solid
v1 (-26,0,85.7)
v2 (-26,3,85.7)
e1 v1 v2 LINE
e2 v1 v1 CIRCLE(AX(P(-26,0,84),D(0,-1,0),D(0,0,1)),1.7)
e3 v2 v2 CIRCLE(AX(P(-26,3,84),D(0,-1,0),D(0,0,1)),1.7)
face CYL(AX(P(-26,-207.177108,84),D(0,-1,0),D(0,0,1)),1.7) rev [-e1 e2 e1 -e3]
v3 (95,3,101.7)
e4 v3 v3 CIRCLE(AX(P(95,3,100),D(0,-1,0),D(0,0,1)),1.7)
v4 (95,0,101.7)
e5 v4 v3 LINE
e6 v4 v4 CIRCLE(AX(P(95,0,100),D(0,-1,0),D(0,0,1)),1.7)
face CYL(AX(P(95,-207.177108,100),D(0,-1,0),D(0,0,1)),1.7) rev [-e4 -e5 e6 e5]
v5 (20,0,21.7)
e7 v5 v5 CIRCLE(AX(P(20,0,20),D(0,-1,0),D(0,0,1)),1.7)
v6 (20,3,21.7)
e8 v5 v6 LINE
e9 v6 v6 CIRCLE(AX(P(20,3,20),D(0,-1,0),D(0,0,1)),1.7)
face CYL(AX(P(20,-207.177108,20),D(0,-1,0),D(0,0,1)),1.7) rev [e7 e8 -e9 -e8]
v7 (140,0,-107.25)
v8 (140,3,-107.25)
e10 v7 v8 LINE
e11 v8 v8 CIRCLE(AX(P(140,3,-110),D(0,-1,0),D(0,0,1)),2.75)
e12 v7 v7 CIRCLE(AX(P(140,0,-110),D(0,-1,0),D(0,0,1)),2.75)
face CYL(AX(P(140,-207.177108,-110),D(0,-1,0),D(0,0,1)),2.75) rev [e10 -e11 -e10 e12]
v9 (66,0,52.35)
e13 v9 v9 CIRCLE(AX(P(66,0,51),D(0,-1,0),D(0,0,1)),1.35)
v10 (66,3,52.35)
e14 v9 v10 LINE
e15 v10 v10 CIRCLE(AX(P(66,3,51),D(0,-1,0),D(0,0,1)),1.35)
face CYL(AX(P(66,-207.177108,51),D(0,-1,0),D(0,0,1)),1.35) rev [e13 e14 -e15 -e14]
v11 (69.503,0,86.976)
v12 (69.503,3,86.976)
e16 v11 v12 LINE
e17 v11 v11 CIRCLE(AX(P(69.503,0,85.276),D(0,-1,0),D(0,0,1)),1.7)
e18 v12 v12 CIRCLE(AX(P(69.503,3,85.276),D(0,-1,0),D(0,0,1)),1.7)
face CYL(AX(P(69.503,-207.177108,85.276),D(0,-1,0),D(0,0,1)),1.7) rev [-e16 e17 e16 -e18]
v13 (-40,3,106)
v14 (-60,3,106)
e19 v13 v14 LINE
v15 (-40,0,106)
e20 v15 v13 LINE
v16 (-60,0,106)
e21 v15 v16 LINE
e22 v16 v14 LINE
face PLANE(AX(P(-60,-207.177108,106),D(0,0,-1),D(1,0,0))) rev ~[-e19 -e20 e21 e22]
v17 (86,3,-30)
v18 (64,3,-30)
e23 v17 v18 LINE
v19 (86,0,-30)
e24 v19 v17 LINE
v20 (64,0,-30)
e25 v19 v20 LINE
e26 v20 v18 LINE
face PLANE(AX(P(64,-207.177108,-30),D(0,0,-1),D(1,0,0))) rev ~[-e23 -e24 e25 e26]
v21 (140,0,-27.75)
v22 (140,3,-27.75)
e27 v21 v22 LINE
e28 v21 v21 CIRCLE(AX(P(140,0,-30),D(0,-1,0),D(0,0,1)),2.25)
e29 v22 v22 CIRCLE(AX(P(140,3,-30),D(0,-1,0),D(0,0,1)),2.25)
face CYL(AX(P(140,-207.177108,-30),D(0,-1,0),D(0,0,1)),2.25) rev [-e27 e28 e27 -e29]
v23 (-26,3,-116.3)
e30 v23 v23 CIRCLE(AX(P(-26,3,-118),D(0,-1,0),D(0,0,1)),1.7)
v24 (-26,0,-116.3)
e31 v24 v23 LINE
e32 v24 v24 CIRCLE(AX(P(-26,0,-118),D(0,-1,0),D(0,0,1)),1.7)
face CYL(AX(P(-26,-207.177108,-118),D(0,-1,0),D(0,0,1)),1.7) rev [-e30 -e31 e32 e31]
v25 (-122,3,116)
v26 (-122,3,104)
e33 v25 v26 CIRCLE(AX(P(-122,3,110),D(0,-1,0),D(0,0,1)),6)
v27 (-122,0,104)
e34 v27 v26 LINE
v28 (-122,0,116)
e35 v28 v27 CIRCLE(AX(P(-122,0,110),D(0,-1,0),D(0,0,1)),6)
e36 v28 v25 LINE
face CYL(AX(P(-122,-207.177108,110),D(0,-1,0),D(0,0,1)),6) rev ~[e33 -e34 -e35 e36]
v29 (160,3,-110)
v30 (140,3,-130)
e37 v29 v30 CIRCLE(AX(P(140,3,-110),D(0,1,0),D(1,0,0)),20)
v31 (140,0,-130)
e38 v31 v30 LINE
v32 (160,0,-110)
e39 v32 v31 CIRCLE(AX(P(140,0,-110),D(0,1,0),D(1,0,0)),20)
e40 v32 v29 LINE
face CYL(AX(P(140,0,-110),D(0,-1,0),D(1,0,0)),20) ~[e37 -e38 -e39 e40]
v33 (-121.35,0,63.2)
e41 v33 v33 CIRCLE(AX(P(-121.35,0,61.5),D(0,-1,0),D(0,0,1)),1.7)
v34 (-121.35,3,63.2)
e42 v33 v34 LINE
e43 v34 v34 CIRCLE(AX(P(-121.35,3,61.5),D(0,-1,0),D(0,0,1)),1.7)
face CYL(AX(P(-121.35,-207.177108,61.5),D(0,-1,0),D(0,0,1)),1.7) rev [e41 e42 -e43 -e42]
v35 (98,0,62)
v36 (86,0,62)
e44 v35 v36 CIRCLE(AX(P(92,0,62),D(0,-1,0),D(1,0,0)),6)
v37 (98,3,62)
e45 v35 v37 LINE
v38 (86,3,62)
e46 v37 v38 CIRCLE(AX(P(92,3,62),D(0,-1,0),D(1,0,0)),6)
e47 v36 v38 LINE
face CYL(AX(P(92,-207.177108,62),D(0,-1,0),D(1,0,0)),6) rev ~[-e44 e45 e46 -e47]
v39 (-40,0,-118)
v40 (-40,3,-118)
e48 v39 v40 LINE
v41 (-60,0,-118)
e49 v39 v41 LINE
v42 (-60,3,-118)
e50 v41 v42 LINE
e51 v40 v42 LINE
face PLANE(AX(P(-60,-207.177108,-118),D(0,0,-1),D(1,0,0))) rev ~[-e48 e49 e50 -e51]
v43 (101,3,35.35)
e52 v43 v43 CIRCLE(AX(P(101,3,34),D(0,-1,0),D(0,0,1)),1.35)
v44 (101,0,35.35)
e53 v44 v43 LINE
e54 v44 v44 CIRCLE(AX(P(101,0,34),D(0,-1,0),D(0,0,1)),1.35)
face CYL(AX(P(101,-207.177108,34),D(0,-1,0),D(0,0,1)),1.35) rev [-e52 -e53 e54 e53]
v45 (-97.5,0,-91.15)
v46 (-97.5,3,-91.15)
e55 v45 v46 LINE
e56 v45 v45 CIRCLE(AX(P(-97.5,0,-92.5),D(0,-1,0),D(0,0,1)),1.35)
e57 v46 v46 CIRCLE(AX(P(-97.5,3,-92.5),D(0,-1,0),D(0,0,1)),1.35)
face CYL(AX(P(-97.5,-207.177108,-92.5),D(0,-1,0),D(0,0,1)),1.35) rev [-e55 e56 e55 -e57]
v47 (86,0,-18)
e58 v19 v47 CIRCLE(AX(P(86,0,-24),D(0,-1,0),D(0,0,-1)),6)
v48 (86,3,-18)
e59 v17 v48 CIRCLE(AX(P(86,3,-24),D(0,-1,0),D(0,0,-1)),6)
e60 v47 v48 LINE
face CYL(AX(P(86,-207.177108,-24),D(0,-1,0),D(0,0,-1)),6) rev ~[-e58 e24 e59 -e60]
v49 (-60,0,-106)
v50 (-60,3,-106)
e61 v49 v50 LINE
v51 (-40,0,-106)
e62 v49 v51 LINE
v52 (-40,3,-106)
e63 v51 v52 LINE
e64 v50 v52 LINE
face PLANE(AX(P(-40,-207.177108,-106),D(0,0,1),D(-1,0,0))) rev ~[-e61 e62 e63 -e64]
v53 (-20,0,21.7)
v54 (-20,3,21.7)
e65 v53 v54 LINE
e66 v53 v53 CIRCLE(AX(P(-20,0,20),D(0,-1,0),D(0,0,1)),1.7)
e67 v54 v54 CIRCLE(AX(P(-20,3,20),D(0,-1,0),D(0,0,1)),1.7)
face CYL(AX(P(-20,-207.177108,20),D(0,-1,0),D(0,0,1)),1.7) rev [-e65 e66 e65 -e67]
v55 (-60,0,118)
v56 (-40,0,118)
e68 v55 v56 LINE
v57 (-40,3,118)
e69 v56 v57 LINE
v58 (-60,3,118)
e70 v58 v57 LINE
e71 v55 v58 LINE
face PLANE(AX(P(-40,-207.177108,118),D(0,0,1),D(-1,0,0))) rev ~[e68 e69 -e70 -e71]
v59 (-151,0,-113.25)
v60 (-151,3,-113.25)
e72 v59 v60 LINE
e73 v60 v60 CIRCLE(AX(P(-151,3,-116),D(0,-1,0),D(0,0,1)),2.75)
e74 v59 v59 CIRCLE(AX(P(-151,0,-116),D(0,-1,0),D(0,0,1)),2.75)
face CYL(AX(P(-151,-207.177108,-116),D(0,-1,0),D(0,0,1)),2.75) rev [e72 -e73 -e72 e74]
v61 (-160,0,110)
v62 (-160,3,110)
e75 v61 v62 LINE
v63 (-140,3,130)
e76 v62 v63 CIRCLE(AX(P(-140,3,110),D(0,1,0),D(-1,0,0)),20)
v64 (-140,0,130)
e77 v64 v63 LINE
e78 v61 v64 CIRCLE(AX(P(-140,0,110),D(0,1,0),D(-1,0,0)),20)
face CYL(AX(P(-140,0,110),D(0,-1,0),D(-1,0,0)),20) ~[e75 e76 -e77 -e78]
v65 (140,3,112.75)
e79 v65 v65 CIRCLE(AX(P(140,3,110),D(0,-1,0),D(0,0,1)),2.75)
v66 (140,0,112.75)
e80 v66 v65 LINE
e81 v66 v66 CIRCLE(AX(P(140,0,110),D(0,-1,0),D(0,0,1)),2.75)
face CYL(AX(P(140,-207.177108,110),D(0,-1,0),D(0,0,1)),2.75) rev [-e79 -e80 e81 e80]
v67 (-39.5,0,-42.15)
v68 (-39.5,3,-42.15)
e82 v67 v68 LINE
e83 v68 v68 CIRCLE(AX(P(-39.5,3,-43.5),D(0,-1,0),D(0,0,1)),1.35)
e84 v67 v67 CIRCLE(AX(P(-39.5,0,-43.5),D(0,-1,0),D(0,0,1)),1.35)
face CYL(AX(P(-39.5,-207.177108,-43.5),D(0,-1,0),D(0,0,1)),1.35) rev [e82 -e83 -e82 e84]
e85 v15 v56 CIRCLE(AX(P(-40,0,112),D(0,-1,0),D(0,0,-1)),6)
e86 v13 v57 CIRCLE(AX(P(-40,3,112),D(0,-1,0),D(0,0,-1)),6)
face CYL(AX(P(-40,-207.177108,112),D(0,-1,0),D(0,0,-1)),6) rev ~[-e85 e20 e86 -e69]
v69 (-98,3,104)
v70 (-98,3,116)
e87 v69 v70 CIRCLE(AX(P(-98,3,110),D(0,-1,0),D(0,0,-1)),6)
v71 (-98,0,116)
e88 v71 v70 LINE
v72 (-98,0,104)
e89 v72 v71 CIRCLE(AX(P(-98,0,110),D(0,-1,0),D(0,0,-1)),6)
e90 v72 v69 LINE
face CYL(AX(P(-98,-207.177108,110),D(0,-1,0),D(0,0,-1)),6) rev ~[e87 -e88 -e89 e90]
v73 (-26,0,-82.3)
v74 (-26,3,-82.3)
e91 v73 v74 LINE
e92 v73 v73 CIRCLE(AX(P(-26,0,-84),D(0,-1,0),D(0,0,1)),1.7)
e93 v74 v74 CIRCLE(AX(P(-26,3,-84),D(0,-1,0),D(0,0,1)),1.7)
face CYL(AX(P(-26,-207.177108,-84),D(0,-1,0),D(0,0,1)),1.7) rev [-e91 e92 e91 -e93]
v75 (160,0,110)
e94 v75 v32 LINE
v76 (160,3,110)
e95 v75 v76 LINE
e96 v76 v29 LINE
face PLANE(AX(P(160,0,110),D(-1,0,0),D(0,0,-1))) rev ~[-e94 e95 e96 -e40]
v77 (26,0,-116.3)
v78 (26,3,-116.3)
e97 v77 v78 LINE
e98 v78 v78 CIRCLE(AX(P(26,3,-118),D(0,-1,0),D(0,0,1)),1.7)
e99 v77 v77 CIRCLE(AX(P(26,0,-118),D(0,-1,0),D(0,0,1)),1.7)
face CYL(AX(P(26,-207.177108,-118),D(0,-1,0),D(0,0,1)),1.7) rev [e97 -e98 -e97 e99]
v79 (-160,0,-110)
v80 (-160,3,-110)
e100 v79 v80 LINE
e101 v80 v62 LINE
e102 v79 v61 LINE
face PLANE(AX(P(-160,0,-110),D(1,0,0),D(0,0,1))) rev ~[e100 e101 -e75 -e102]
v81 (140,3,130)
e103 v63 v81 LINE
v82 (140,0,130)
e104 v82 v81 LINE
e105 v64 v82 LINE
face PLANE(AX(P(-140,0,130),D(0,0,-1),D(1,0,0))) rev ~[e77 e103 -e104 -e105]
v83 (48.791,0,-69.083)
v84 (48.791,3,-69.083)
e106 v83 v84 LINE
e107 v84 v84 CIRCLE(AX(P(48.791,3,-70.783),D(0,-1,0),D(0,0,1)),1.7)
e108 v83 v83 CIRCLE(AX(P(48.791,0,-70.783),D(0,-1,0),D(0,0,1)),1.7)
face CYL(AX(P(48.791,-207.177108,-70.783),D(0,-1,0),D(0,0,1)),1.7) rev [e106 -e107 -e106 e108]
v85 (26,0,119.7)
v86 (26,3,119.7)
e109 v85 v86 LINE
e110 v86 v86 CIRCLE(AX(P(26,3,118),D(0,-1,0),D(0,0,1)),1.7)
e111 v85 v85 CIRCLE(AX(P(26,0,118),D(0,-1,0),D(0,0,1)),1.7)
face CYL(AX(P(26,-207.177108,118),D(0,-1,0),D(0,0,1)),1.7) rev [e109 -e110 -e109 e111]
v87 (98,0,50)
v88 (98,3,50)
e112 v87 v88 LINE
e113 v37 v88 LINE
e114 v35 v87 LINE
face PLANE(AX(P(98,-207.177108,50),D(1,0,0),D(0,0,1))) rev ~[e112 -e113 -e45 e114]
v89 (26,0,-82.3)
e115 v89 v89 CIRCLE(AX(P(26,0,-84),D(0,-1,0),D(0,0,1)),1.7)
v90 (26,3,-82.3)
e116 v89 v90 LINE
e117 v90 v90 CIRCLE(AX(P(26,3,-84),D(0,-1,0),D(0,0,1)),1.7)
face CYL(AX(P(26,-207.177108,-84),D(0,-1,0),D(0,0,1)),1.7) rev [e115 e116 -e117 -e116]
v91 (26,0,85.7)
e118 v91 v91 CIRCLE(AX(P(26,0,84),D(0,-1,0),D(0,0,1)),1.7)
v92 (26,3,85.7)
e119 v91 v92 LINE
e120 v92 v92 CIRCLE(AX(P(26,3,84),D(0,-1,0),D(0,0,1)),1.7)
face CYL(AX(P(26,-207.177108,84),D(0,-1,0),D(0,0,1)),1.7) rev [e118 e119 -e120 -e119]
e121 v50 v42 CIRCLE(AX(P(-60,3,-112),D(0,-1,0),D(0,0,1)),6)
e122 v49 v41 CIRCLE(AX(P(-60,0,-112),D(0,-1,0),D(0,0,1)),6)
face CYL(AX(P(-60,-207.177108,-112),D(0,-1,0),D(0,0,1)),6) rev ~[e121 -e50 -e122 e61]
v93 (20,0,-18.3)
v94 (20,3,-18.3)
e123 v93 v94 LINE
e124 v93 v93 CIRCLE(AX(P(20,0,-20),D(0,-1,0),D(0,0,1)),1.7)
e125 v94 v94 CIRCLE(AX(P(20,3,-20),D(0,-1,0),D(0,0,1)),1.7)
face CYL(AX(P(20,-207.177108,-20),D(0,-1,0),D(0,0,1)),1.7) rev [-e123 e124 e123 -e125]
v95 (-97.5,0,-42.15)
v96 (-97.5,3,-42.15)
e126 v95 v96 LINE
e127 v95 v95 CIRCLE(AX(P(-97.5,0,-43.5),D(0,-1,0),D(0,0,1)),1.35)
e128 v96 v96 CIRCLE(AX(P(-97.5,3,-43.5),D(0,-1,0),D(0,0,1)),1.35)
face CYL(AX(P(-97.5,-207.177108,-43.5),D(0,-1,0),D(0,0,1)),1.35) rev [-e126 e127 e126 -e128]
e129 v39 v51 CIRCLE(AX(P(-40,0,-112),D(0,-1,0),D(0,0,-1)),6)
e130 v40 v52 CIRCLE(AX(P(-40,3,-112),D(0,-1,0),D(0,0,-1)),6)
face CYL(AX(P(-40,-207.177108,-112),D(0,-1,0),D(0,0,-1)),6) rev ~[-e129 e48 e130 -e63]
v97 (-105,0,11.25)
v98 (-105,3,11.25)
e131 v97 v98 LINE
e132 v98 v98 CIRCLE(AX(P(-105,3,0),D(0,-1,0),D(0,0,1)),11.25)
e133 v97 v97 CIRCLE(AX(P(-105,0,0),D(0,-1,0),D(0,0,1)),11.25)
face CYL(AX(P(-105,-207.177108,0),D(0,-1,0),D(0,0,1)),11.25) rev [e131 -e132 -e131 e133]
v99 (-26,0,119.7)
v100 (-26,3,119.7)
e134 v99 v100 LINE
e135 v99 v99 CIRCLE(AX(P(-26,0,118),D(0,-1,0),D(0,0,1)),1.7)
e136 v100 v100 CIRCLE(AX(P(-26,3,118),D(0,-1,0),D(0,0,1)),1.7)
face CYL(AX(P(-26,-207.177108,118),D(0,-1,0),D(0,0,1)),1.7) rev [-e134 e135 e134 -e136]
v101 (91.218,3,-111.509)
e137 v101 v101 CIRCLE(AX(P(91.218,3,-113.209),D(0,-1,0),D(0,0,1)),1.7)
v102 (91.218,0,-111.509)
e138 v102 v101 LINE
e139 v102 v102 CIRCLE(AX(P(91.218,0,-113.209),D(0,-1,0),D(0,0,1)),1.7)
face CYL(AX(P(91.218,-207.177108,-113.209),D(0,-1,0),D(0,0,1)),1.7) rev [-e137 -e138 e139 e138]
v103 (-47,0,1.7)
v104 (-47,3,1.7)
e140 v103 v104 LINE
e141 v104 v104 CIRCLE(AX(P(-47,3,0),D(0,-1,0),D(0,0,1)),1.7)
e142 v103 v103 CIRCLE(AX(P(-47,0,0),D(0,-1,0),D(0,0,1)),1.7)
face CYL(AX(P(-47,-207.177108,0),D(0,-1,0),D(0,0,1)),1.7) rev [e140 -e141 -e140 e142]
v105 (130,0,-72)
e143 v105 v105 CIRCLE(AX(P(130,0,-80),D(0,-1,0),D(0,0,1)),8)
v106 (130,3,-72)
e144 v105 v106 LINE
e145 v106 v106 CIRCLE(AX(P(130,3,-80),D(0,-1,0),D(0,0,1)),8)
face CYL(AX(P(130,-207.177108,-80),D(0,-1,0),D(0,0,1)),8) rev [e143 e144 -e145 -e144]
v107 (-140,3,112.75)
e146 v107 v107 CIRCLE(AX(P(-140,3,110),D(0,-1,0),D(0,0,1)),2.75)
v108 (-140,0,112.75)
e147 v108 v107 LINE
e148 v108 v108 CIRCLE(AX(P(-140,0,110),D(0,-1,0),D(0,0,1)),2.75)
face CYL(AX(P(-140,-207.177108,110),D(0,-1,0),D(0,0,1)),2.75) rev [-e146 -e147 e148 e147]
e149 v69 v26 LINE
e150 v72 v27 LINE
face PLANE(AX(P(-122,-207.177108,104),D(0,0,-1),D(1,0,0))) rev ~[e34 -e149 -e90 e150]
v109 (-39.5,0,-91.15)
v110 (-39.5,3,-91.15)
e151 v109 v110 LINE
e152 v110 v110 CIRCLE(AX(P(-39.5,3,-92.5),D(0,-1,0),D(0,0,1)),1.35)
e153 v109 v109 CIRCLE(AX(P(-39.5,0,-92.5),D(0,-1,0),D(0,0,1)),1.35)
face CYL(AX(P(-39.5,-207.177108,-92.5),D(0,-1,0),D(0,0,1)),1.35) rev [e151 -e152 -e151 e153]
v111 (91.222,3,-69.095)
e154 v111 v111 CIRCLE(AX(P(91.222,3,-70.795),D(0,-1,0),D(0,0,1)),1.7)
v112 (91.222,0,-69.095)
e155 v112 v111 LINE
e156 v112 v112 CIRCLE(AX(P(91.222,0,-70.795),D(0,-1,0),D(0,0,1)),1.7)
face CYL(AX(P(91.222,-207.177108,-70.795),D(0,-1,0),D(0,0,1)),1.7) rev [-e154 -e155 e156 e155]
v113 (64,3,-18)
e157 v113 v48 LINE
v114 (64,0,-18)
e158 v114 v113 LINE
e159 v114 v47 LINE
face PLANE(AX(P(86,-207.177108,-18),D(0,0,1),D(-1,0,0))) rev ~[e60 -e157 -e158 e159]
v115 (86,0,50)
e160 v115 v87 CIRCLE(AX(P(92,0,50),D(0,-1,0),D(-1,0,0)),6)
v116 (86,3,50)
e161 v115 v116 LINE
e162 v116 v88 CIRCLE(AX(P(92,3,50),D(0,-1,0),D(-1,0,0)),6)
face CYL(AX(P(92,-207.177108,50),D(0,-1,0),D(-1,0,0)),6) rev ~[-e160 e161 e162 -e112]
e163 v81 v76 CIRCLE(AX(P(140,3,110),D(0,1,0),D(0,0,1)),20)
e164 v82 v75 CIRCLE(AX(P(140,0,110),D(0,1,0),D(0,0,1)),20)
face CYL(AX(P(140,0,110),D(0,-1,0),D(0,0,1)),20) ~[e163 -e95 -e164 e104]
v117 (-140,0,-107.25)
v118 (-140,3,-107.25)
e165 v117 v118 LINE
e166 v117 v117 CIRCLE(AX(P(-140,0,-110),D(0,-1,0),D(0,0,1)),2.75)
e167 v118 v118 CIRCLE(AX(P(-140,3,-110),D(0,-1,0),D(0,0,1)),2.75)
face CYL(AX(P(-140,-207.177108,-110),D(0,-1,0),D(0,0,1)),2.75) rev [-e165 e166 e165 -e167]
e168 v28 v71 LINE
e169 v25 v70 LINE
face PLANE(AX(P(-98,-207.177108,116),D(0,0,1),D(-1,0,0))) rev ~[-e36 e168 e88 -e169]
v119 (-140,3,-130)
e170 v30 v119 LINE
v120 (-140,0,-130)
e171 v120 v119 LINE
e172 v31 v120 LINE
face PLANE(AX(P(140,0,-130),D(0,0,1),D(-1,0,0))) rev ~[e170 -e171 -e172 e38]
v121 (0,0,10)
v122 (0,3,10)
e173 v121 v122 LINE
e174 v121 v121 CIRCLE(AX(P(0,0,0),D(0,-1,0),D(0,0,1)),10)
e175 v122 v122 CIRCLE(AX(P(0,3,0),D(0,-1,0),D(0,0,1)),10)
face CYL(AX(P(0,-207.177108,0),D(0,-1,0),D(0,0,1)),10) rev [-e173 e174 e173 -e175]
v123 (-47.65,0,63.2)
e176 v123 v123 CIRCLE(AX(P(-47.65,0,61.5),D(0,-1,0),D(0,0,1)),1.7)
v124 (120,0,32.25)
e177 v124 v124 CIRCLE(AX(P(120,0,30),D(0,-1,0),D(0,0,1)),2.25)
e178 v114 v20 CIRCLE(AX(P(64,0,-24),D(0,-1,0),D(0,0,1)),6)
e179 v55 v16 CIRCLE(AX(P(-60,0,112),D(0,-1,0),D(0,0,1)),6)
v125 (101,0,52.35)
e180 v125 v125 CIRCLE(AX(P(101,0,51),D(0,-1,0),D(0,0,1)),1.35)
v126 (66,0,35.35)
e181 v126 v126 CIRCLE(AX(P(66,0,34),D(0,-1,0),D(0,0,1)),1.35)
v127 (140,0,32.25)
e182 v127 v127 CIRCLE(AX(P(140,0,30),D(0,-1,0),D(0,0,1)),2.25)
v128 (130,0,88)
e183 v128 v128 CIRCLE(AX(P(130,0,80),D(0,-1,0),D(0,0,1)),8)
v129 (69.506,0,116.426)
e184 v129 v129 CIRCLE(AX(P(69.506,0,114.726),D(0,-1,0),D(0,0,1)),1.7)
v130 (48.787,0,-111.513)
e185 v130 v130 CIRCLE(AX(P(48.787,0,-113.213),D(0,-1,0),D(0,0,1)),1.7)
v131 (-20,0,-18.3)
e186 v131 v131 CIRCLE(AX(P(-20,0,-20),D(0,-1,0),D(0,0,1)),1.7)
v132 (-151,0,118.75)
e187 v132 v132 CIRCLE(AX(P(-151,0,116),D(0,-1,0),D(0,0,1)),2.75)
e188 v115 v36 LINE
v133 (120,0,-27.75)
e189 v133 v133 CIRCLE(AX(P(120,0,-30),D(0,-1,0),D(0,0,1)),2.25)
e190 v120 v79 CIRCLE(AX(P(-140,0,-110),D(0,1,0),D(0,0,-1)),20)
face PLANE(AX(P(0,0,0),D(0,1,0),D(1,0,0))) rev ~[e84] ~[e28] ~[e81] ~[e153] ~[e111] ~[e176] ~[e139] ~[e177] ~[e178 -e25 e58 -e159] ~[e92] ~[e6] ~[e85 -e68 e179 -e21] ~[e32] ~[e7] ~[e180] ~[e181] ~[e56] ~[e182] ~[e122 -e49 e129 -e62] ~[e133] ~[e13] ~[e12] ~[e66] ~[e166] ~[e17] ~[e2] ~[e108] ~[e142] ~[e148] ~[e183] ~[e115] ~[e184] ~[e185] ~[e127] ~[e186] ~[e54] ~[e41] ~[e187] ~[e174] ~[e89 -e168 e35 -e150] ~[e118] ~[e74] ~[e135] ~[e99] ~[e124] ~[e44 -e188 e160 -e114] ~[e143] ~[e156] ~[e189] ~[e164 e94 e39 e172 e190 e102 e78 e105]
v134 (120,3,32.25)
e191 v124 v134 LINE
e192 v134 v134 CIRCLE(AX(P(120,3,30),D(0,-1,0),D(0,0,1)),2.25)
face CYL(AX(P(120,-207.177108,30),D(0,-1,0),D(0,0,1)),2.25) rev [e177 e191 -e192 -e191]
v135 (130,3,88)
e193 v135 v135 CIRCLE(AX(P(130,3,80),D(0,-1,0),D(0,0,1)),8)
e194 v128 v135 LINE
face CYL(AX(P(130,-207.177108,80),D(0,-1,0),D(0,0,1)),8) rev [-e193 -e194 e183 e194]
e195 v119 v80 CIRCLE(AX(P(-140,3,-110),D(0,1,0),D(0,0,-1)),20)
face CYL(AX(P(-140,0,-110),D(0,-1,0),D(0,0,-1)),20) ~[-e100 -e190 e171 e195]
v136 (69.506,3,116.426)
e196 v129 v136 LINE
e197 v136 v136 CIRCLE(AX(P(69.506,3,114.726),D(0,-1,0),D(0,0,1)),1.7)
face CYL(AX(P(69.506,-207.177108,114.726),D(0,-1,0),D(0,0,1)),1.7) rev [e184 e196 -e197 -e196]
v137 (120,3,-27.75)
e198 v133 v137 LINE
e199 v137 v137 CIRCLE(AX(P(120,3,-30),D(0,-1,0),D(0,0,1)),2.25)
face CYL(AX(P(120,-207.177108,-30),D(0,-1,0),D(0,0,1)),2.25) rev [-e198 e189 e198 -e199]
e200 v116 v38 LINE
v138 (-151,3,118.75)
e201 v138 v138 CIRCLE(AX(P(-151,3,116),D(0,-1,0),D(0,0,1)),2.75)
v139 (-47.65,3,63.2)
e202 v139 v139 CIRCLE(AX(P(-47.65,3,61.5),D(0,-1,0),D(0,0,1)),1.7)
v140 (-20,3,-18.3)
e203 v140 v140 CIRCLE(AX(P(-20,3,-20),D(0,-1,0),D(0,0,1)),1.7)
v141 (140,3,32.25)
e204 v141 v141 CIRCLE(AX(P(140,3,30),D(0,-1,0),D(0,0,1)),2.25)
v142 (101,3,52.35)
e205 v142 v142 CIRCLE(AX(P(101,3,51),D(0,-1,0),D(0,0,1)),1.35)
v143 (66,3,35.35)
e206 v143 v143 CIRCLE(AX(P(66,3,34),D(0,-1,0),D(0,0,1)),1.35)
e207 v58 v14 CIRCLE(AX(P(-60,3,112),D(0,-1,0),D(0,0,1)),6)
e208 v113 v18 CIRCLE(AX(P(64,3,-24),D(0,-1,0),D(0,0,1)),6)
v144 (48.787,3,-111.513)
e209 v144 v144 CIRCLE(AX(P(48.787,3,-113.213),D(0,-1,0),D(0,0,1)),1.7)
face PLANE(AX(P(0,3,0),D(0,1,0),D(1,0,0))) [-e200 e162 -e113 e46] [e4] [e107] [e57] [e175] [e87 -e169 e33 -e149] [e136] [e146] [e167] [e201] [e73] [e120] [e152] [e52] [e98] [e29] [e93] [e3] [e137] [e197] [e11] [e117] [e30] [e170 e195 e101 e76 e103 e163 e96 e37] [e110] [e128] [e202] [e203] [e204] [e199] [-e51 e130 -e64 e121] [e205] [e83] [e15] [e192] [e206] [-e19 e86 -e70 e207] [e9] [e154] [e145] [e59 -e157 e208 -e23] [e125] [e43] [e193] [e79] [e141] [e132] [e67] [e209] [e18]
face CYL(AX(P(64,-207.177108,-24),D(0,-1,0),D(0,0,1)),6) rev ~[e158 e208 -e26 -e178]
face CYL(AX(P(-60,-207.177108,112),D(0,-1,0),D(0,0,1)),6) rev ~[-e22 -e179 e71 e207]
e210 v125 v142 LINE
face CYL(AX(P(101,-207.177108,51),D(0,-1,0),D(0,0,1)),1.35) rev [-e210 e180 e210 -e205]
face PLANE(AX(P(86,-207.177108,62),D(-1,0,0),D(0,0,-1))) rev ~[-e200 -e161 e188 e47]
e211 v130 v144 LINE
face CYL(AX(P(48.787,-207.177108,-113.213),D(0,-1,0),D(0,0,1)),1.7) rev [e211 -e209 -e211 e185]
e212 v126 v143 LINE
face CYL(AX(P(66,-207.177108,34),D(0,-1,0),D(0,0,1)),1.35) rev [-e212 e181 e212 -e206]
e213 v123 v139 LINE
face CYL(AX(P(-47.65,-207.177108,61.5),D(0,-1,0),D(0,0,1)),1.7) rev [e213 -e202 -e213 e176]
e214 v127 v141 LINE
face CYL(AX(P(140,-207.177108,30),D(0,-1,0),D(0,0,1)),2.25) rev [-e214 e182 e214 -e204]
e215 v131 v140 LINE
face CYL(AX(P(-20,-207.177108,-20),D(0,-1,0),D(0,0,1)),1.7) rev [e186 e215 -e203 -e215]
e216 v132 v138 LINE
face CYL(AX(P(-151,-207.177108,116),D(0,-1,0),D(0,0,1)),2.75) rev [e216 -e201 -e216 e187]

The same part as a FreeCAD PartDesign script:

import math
import FreeCAD as App
import Part
import Sketcher
Q = App.Units.Quantity

doc = App.newDocument("Part")
body = doc.addObject("PartDesign::Body", "Body")

sketch1 = doc.addObject("Sketcher::SketchObject", "Sketch")
body.addObject(sketch1)
sketch1.AttachmentSupport = (doc.XZ_Plane, [""])
sketch1.MapMode = "FlatFace"
sketch1.addGeometry([
    Part.LineSegment(App.Vector(160, 110, 0), App.Vector(160, -110, 0)),
    Part.ArcOfCircle(Part.Circle(App.Vector(140, -110, 0), App.Vector(0, 0, 1), 20), math.radians(-90), math.radians(0)),
    Part.LineSegment(App.Vector(140, -130, 0), App.Vector(-140, -130, 0)),
    Part.ArcOfCircle(Part.Circle(App.Vector(-140, -110, 0), App.Vector(0, 0, 1), 20), math.radians(180), math.radians(270)),
    Part.LineSegment(App.Vector(-160, -110, 0), App.Vector(-160, 110, 0)),
    Part.ArcOfCircle(Part.Circle(App.Vector(-140, 110, 0), App.Vector(0, 0, 1), 20), math.radians(90), math.radians(180)),
    Part.LineSegment(App.Vector(-140, 130, 0), App.Vector(140, 130, 0)),
    Part.ArcOfCircle(Part.Circle(App.Vector(140, 110, 0), App.Vector(0, 0, 1), 20), math.radians(0), math.radians(90)),
], False)
sketch1.addConstraint([
    Sketcher.Constraint("Tangent", 0, 2, 1, 2),
    Sketcher.Constraint("Tangent", 1, 1, 2, 1),
    Sketcher.Constraint("Tangent", 2, 2, 3, 2),
    Sketcher.Constraint("Tangent", 3, 1, 4, 1),
    Sketcher.Constraint("Tangent", 4, 2, 5, 2),
    Sketcher.Constraint("Tangent", 5, 1, 6, 1),
    Sketcher.Constraint("Tangent", 6, 2, 7, 2),
    Sketcher.Constraint("Tangent", 7, 1, 0, 1),
    Sketcher.Constraint("Vertical", 0),
    Sketcher.Constraint("Horizontal", 2),
    Sketcher.Constraint("Vertical", 4),
    Sketcher.Constraint("Horizontal", 6),
    Sketcher.Constraint("Equal", 1, 3),
    Sketcher.Constraint("Equal", 3, 5),
    Sketcher.Constraint("Equal", 5, 7),
    Sketcher.Constraint("Symmetric", 1, 3, 5, 3, -1, 1),
    Sketcher.Constraint("Radius", 1, Q("20 mm")),
    Sketcher.Constraint("DistanceX", 2, 2, 2, 1, Q("280 mm")),
    Sketcher.Constraint("DistanceY", 0, 2, 0, 1, Q("220 mm")),
])
pad1 = doc.addObject("PartDesign::Pad", "Pad")
body.addObject(pad1)
pad1.Profile = sketch1
pad1.Length = 3
pad1.Reversed = True

sketch2 = doc.addObject("Sketcher::SketchObject", "Sketch001")
body.addObject(sketch2)
sketch2.AttachmentSupport = (doc.XZ_Plane, [""])
sketch2.MapMode = "FlatFace"
sketch2.addGeometry([
    Part.Circle(App.Vector(140, 110, 0), App.Vector(0, 0, 1), 2.75),
    Part.Circle(App.Vector(140, -110, 0), App.Vector(0, 0, 1), 2.75),
    Part.Circle(App.Vector(-140, 110, 0), App.Vector(0, 0, 1), 2.75),
    Part.Circle(App.Vector(-140, -110, 0), App.Vector(0, 0, 1), 2.75),
], False)
sketch2.addConstraint([
    Sketcher.Constraint("Equal", 0, 1),
    Sketcher.Constraint("Equal", 1, 2),
    Sketcher.Constraint("Equal", 2, 3),
    Sketcher.Constraint("Symmetric", 1, 3, 2, 3, -1, 1),
    Sketcher.Constraint("Symmetric", 0, 3, 3, 3, -1, 1),
    Sketcher.Constraint("Symmetric", 0, 3, 2, 3, -2),
    Sketcher.Constraint("Diameter", 0, Q("5.5 mm")),
    Sketcher.Constraint("DistanceX", -1, 1, 0, 3, Q("140 mm")),
    Sketcher.Constraint("DistanceY", -1, 1, 0, 3, Q("110 mm")),
])
pocket1 = doc.addObject("PartDesign::Pocket", "Pocket")
body.addObject(pocket1)
pocket1.Profile = sketch2
pocket1.Type = "ThroughAll"
pocket1.Midplane = True

sketch3 = doc.addObject("Sketcher::SketchObject", "Sketch002")
body.addObject(sketch3)
sketch3.AttachmentSupport = (doc.XZ_Plane, [""])
sketch3.MapMode = "FlatFace"
sketch3.addGeometry([
    Part.Circle(App.Vector(20, 20, 0), App.Vector(0, 0, 1), 1.7),
    Part.Circle(App.Vector(20, -20, 0), App.Vector(0, 0, 1), 1.7),
    Part.Circle(App.Vector(-20, 20, 0), App.Vector(0, 0, 1), 1.7),
    Part.Circle(App.Vector(-20, -20, 0), App.Vector(0, 0, 1), 1.7),
], False)
sketch3.addConstraint([
    Sketcher.Constraint("Equal", 0, 1),
    Sketcher.Constraint("Equal", 1, 2),
    Sketcher.Constraint("Equal", 2, 3),
    Sketcher.Constraint("Symmetric", 1, 3, 2, 3, -1, 1),
    Sketcher.Constraint("Symmetric", 0, 3, 3, 3, -1, 1),
    Sketcher.Constraint("Symmetric", 0, 3, 2, 3, -2),
    Sketcher.Constraint("Diameter", 0, Q("3.4 mm")),
    Sketcher.Constraint("DistanceX", -1, 1, 0, 3, Q("20 mm")),
    Sketcher.Constraint("DistanceY", -1, 1, 0, 3, Q("20 mm")),
])
pocket2 = doc.addObject("PartDesign::Pocket", "Pocket001")
body.addObject(pocket2)
pocket2.Profile = sketch3
pocket2.Type = "ThroughAll"
pocket2.Midplane = True

sketch4 = doc.addObject("Sketcher::SketchObject", "Sketch003")
body.addObject(sketch4)
sketch4.AttachmentSupport = (doc.XZ_Plane, [""])
sketch4.MapMode = "FlatFace"
sketch4.addGeometry(Part.Circle(App.Vector(0, 0, 0), App.Vector(0, 0, 1), 10), False)
sketch4.addConstraint([
    Sketcher.Constraint("Coincident", 0, 3, -1, 1),
    Sketcher.Constraint("Diameter", 0, Q("20 mm")),
])
pocket3 = doc.addObject("PartDesign::Pocket", "Pocket002")
body.addObject(pocket3)
pocket3.Profile = sketch4
pocket3.Type = "ThroughAll"
pocket3.Midplane = True

sketch5 = doc.addObject("Sketcher::SketchObject", "Sketch004")
body.addObject(sketch5)
sketch5.AttachmentSupport = (doc.XZ_Plane, [""])
sketch5.MapMode = "FlatFace"
sketch5.addGeometry([
    Part.Circle(App.Vector(-97.5, -92.5, 0), App.Vector(0, 0, 1), 1.35),
    Part.Circle(App.Vector(-97.5, -43.5, 0), App.Vector(0, 0, 1), 1.35),
    Part.Circle(App.Vector(-39.5, -92.5, 0), App.Vector(0, 0, 1), 1.35),
    Part.Circle(App.Vector(-39.5, -43.5, 0), App.Vector(0, 0, 1), 1.35),
], False)
sketch5.addConstraint([
    Sketcher.Constraint("Equal", 0, 1),
    Sketcher.Constraint("Equal", 1, 2),
    Sketcher.Constraint("Equal", 2, 3),
    Sketcher.Constraint("Horizontal", 0, 3, 2, 3),
    Sketcher.Constraint("Horizontal", 1, 3, 3, 3),
    Sketcher.Constraint("Vertical", 0, 3, 1, 3),
    Sketcher.Constraint("Vertical", 2, 3, 3, 3),
    Sketcher.Constraint("Diameter", 0, Q("2.7 mm")),
    Sketcher.Constraint("DistanceY", 0, 3, 1, 3, Q("49 mm")),
    Sketcher.Constraint("DistanceX", 0, 3, 2, 3, Q("58 mm")),
    Sketcher.Constraint("DistanceX", 0, 3, -1, 1, Q("97.5 mm")),
    Sketcher.Constraint("DistanceY", 0, 3, -1, 1, Q("92.5 mm")),
])
pocket4 = doc.addObject("PartDesign::Pocket", "Pocket003")
body.addObject(pocket4)
pocket4.Profile = sketch5
pocket4.Type = "ThroughAll"
pocket4.Midplane = True

sketch6 = doc.addObject("Sketcher::SketchObject", "Sketch005")
body.addObject(sketch6)
sketch6.AttachmentSupport = (doc.XZ_Plane, [""])
sketch6.MapMode = "FlatFace"
sketch6.addGeometry([
    Part.Circle(App.Vector(-121.35, 61.5, 0), App.Vector(0, 0, 1), 1.7),
    Part.Circle(App.Vector(-47.65, 61.5, 0), App.Vector(0, 0, 1), 1.7),
], False)
sketch6.addConstraint([
    Sketcher.Constraint("Equal", 0, 1),
    Sketcher.Constraint("Horizontal", 0, 3, 1, 3),
    Sketcher.Constraint("Diameter", 0, Q("3.4 mm")),
    Sketcher.Constraint("DistanceY", -1, 1, 0, 3, Q("61.5 mm")),
    Sketcher.Constraint("DistanceX", 0, 3, 1, 3, Q("73.7 mm")),
    Sketcher.Constraint("DistanceX", 0, 3, -1, 1, Q("121.35 mm")),
])
pocket5 = doc.addObject("PartDesign::Pocket", "Pocket004")
body.addObject(pocket5)
pocket5.Profile = sketch6
pocket5.Type = "ThroughAll"
pocket5.Midplane = True

sketch7 = doc.addObject("Sketcher::SketchObject", "Sketch006")
body.addObject(sketch7)
sketch7.AttachmentSupport = (doc.XZ_Plane, [""])
sketch7.MapMode = "FlatFace"
sketch7.addGeometry(Part.Circle(App.Vector(-105, 0, 0), App.Vector(0, 0, 1), 11.25), False)
sketch7.addConstraint([
    Sketcher.Constraint("PointOnObject", 0, 3, -1),
    Sketcher.Constraint("Diameter", 0, Q("22.5 mm")),
    Sketcher.Constraint("DistanceX", 0, 3, -1, 1, Q("105 mm")),
])
pocket6 = doc.addObject("PartDesign::Pocket", "Pocket005")
body.addObject(pocket6)
pocket6.Profile = sketch7
pocket6.Type = "ThroughAll"
pocket6.Midplane = True

sketch8 = doc.addObject("Sketcher::SketchObject", "Sketch007")
body.addObject(sketch8)
sketch8.AttachmentSupport = (doc.XZ_Plane, [""])
sketch8.MapMode = "FlatFace"
sketch8.addGeometry([
    Part.Circle(App.Vector(120, 30, 0), App.Vector(0, 0, 1), 2.25),
    Part.Circle(App.Vector(120, -30, 0), App.Vector(0, 0, 1), 2.25),
    Part.Circle(App.Vector(140, 30, 0), App.Vector(0, 0, 1), 2.25),
    Part.Circle(App.Vector(140, -30, 0), App.Vector(0, 0, 1), 2.25),
], False)
sketch8.addConstraint([
    Sketcher.Constraint("Equal", 0, 1),
    Sketcher.Constraint("Equal", 1, 2),
    Sketcher.Constraint("Equal", 2, 3),
    Sketcher.Constraint("Symmetric", 0, 3, 1, 3, -1),
    Sketcher.Constraint("Symmetric", 2, 3, 3, 3, -1),
    Sketcher.Constraint("Horizontal", 0, 3, 2, 3),
    Sketcher.Constraint("Diameter", 0, Q("4.5 mm")),
    Sketcher.Constraint("DistanceX", -1, 1, 0, 3, Q("120 mm")),
    Sketcher.Constraint("DistanceY", -1, 1, 0, 3, Q("30 mm")),
    Sketcher.Constraint("DistanceX", -1, 1, 2, 3, Q("140 mm")),
])
pocket7 = doc.addObject("PartDesign::Pocket", "Pocket006")
body.addObject(pocket7)
pocket7.Profile = sketch8
pocket7.Type = "ThroughAll"
pocket7.Midplane = True

sketch9 = doc.addObject("Sketcher::SketchObject", "Sketch008")
body.addObject(sketch9)
sketch9.AttachmentSupport = (doc.XZ_Plane, [""])
sketch9.MapMode = "FlatFace"
sketch9.addGeometry([
    Part.Circle(App.Vector(130, 80, 0), App.Vector(0, 0, 1), 8),
    Part.Circle(App.Vector(130, -80, 0), App.Vector(0, 0, 1), 8),
], False)
sketch9.addConstraint([
    Sketcher.Constraint("Equal", 0, 1),
    Sketcher.Constraint("Symmetric", 0, 3, 1, 3, -1),
    Sketcher.Constraint("Diameter", 0, Q("16 mm")),
    Sketcher.Constraint("DistanceX", -1, 1, 0, 3, Q("130 mm")),
    Sketcher.Constraint("DistanceY", -1, 1, 0, 3, Q("80 mm")),
])
pocket8 = doc.addObject("PartDesign::Pocket", "Pocket007")
body.addObject(pocket8)
pocket8.Profile = sketch9
pocket8.Type = "ThroughAll"
pocket8.Midplane = True

sketch10 = doc.addObject("Sketcher::SketchObject", "Sketch009")
body.addObject(sketch10)
sketch10.AttachmentSupport = (doc.XZ_Plane, [""])
sketch10.MapMode = "FlatFace"
sketch10.addGeometry([
    Part.Circle(App.Vector(-151, 116, 0), App.Vector(0, 0, 1), 2.75),
    Part.Circle(App.Vector(-151, -116, 0), App.Vector(0, 0, 1), 2.75),
], False)
sketch10.addConstraint([
    Sketcher.Constraint("Equal", 0, 1),
    Sketcher.Constraint("Symmetric", 0, 3, 1, 3, -1),
    Sketcher.Constraint("Diameter", 0, Q("5.5 mm")),
    Sketcher.Constraint("DistanceX", 0, 3, -1, 1, Q("151 mm")),
    Sketcher.Constraint("DistanceY", -1, 1, 0, 3, Q("116 mm")),
])
pocket9 = doc.addObject("PartDesign::Pocket", "Pocket008")
body.addObject(pocket9)
pocket9.Profile = sketch10
pocket9.Type = "ThroughAll"
pocket9.Midplane = True

sketch11 = doc.addObject("Sketcher::SketchObject", "Sketch010")
body.addObject(sketch11)
sketch11.AttachmentSupport = (doc.XZ_Plane, [""])
sketch11.MapMode = "FlatFace"
sketch11.addGeometry([
    Part.Circle(App.Vector(-26, 84, 0), App.Vector(0, 0, 1), 1.7),
    Part.Circle(App.Vector(-26, 118, 0), App.Vector(0, 0, 1), 1.7),
    Part.Circle(App.Vector(26, 84, 0), App.Vector(0, 0, 1), 1.7),
    Part.Circle(App.Vector(26, 118, 0), App.Vector(0, 0, 1), 1.7),
    Part.Circle(App.Vector(-26, -84, 0), App.Vector(0, 0, 1), 1.7),
    Part.Circle(App.Vector(-26, -118, 0), App.Vector(0, 0, 1), 1.7),
    Part.Circle(App.Vector(26, -84, 0), App.Vector(0, 0, 1), 1.7),
    Part.Circle(App.Vector(26, -118, 0), App.Vector(0, 0, 1), 1.7),
], False)
sketch11.addConstraint([
    Sketcher.Constraint("Equal", 0, 1),
    Sketcher.Constraint("Equal", 1, 2),
    Sketcher.Constraint("Equal", 2, 3),
    Sketcher.Constraint("Equal", 3, 4),
    Sketcher.Constraint("Equal", 4, 5),
    Sketcher.Constraint("Equal", 5, 6),
    Sketcher.Constraint("Equal", 6, 7),
    Sketcher.Constraint("Symmetric", 2, 3, 4, 3, -1, 1),
    Sketcher.Constraint("Symmetric", 3, 3, 5, 3, -1, 1),
    Sketcher.Constraint("Symmetric", 0, 3, 6, 3, -1, 1),
    Sketcher.Constraint("Symmetric", 1, 3, 7, 3, -1, 1),
    Sketcher.Constraint("Symmetric", 0, 3, 2, 3, -2),
    Sketcher.Constraint("Symmetric", 1, 3, 3, 3, -2),
    Sketcher.Constraint("Vertical", 0, 3, 1, 3),
    Sketcher.Constraint("Diameter", 0, Q("3.4 mm")),
    Sketcher.Constraint("DistanceX", 0, 3, -1, 1, Q("26 mm")),
    Sketcher.Constraint("DistanceY", -1, 1, 0, 3, Q("84 mm")),
    Sketcher.Constraint("DistanceY", -1, 1, 1, 3, Q("118 mm")),
])
pocket10 = doc.addObject("PartDesign::Pocket", "Pocket009")
body.addObject(pocket10)
pocket10.Profile = sketch11
pocket10.Type = "ThroughAll"
pocket10.Midplane = True

sketch12 = doc.addObject("Sketcher::SketchObject", "Sketch011")
body.addObject(sketch12)
sketch12.AttachmentSupport = (doc.XZ_Plane, [""])
sketch12.MapMode = "FlatFace"
sketch12.addGeometry([
    Part.Circle(App.Vector(66, 34, 0), App.Vector(0, 0, 1), 1.35),
    Part.Circle(App.Vector(66, 51, 0), App.Vector(0, 0, 1), 1.35),
    Part.Circle(App.Vector(101, 34, 0), App.Vector(0, 0, 1), 1.35),
    Part.Circle(App.Vector(101, 51, 0), App.Vector(0, 0, 1), 1.35),
], False)
sketch12.addConstraint([
    Sketcher.Constraint("Equal", 0, 1),
    Sketcher.Constraint("Equal", 1, 2),
    Sketcher.Constraint("Equal", 2, 3),
    Sketcher.Constraint("Horizontal", 0, 3, 2, 3),
    Sketcher.Constraint("Horizontal", 1, 3, 3, 3),
    Sketcher.Constraint("Vertical", 0, 3, 1, 3),
    Sketcher.Constraint("Vertical", 2, 3, 3, 3),
    Sketcher.Constraint("Diameter", 0, Q("2.7 mm")),
    Sketcher.Constraint("DistanceX", -1, 1, 0, 3, Q("66 mm")),
    Sketcher.Constraint("DistanceY", -1, 1, 0, 3, Q("34 mm")),
    Sketcher.Constraint("DistanceY", -1, 1, 1, 3, Q("51 mm")),
    Sketcher.Constraint("DistanceX", -1, 1, 2, 3, Q("101 mm")),
])
pocket11 = doc.addObject("PartDesign::Pocket", "Pocket010")
body.addObject(pocket11)
pocket11.Profile = sketch12
pocket11.Type = "ThroughAll"
pocket11.Midplane = True

sketch13 = doc.addObject("Sketcher::SketchObject", "Sketch012")
body.addObject(sketch13)
sketch13.AttachmentSupport = (doc.XZ_Plane, [""])
sketch13.MapMode = "FlatFace"
sketch13.addGeometry(Part.Circle(App.Vector(-47, 0, 0), App.Vector(0, 0, 1), 1.7), False)
sketch13.addConstraint([
    Sketcher.Constraint("PointOnObject", 0, 3, -1),
    Sketcher.Constraint("Diameter", 0, Q("3.4 mm")),
    Sketcher.Constraint("DistanceX", 0, 3, -1, 1, Q("47 mm")),
])
pocket12 = doc.addObject("PartDesign::Pocket", "Pocket011")
body.addObject(pocket12)
pocket12.Profile = sketch13
pocket12.Type = "ThroughAll"
pocket12.Midplane = True

sketch14 = doc.addObject("Sketcher::SketchObject", "Sketch013")
body.addObject(sketch14)
sketch14.AttachmentSupport = (doc.XZ_Plane, [""])
sketch14.MapMode = "FlatFace"
sketch14.addGeometry([
    Part.Circle(App.Vector(91.222, -70.795, 0), App.Vector(0, 0, 1), 1.7),
    Part.Circle(App.Vector(48.791, -70.783, 0), App.Vector(0, 0, 1), 1.7),
    Part.Circle(App.Vector(48.787, -113.213, 0), App.Vector(0, 0, 1), 1.7),
    Part.Circle(App.Vector(91.218, -113.209, 0), App.Vector(0, 0, 1), 1.7),
], False)
sketch14.addConstraint([
    Sketcher.Constraint("Equal", 0, 1),
    Sketcher.Constraint("Equal", 1, 2),
    Sketcher.Constraint("Equal", 2, 3),
    Sketcher.Constraint("Diameter", 0, Q("3.4 mm")),
    Sketcher.Constraint("DistanceY", 2, 3, 1, 3, Q("42.43 mm")),
    Sketcher.Constraint("DistanceX", -1, 1, 0, 3, Q("91.222 mm")),
    Sketcher.Constraint("DistanceY", 0, 3, -1, 1, Q("70.795 mm")),
    Sketcher.Constraint("DistanceX", -1, 1, 1, 3, Q("48.791 mm")),
    Sketcher.Constraint("DistanceY", 1, 3, -1, 1, Q("70.783 mm")),
    Sketcher.Constraint("DistanceX", -1, 1, 2, 3, Q("48.787 mm")),
    Sketcher.Constraint("DistanceX", -1, 1, 3, 3, Q("91.218 mm")),
    Sketcher.Constraint("DistanceY", 3, 3, -1, 1, Q("113.209 mm")),
])
pocket13 = doc.addObject("PartDesign::Pocket", "Pocket012")
body.addObject(pocket13)
pocket13.Profile = sketch14
pocket13.Type = "ThroughAll"
pocket13.Midplane = True

sketch15 = doc.addObject("Sketcher::SketchObject", "Sketch014")
body.addObject(sketch15)
sketch15.AttachmentSupport = (doc.XZ_Plane, [""])
sketch15.MapMode = "FlatFace"
sketch15.addGeometry([
    Part.Circle(App.Vector(95, 100, 0), App.Vector(0, 0, 1), 1.7),
    Part.Circle(App.Vector(69.506, 114.726, 0), App.Vector(0, 0, 1), 1.7),
    Part.Circle(App.Vector(69.503, 85.276, 0), App.Vector(0, 0, 1), 1.7),
], False)
sketch15.addConstraint([
    Sketcher.Constraint("Equal", 0, 1),
    Sketcher.Constraint("Equal", 1, 2),
    Sketcher.Constraint("Diameter", 0, Q("3.4 mm")),
    Sketcher.Constraint("DistanceX", -1, 1, 0, 3, Q("95 mm")),
    Sketcher.Constraint("DistanceY", -1, 1, 0, 3, Q("100 mm")),
    Sketcher.Constraint("DistanceY", 2, 3, 1, 3, Q("29.45 mm")),
    Sketcher.Constraint("DistanceX", -1, 1, 1, 3, Q("69.506 mm")),
    Sketcher.Constraint("DistanceY", -1, 1, 1, 3, Q("114.726 mm")),
    Sketcher.Constraint("DistanceX", -1, 1, 2, 3, Q("69.503 mm")),
])
pocket14 = doc.addObject("PartDesign::Pocket", "Pocket013")
body.addObject(pocket14)
pocket14.Profile = sketch15
pocket14.Type = "ThroughAll"
pocket14.Midplane = True

sketch16 = doc.addObject("Sketcher::SketchObject", "Sketch015")
body.addObject(sketch16)
sketch16.AttachmentSupport = (doc.XZ_Plane, [""])
sketch16.MapMode = "FlatFace"
sketch16.addGeometry([
    Part.LineSegment(App.Vector(-40, -118, 0), App.Vector(-60, -118, 0)),
    Part.ArcOfCircle(Part.Circle(App.Vector(-60, -112, 0), App.Vector(0, 0, 1), 6), math.radians(90), math.radians(270)),
    Part.LineSegment(App.Vector(-60, -106, 0), App.Vector(-40, -106, 0)),
    Part.ArcOfCircle(Part.Circle(App.Vector(-40, -112, 0), App.Vector(0, 0, 1), 6), math.radians(-90), math.radians(90)),
    Part.LineSegment(App.Vector(-40, 106, 0), App.Vector(-60, 106, 0)),
    Part.ArcOfCircle(Part.Circle(App.Vector(-60, 112, 0), App.Vector(0, 0, 1), 6), math.radians(90), math.radians(270)),
    Part.LineSegment(App.Vector(-60, 118, 0), App.Vector(-40, 118, 0)),
    Part.ArcOfCircle(Part.Circle(App.Vector(-40, 112, 0), App.Vector(0, 0, 1), 6), math.radians(-90), math.radians(90)),
    Part.LineSegment(App.Vector(-98, 104, 0), App.Vector(-122, 104, 0)),
    Part.ArcOfCircle(Part.Circle(App.Vector(-122, 110, 0), App.Vector(0, 0, 1), 6), math.radians(90), math.radians(270)),
    Part.LineSegment(App.Vector(-122, 116, 0), App.Vector(-98, 116, 0)),
    Part.ArcOfCircle(Part.Circle(App.Vector(-98, 110, 0), App.Vector(0, 0, 1), 6), math.radians(-90), math.radians(90)),
    Part.LineSegment(App.Vector(86, -30, 0), App.Vector(64, -30, 0)),
    Part.ArcOfCircle(Part.Circle(App.Vector(64, -24, 0), App.Vector(0, 0, 1), 6), math.radians(90), math.radians(270)),
    Part.LineSegment(App.Vector(64, -18, 0), App.Vector(86, -18, 0)),
    Part.ArcOfCircle(Part.Circle(App.Vector(86, -24, 0), App.Vector(0, 0, 1), 6), math.radians(-90), math.radians(90)),
    Part.LineSegment(App.Vector(98, 62, 0), App.Vector(98, 50, 0)),
    Part.ArcOfCircle(Part.Circle(App.Vector(92, 50, 0), App.Vector(0, 0, 1), 6), math.radians(180), math.radians(360)),
    Part.LineSegment(App.Vector(86, 50, 0), App.Vector(86, 62, 0)),
    Part.ArcOfCircle(Part.Circle(App.Vector(92, 62, 0), App.Vector(0, 0, 1), 6), math.radians(0), math.radians(180)),
], False)
sketch16.addConstraint([
    Sketcher.Constraint("Tangent", 0, 2, 1, 2),
    Sketcher.Constraint("Tangent", 1, 1, 2, 1),
    Sketcher.Constraint("Tangent", 2, 2, 3, 2),
    Sketcher.Constraint("Tangent", 3, 1, 0, 1),
    Sketcher.Constraint("Tangent", 4, 2, 5, 2),
    Sketcher.Constraint("Tangent", 5, 1, 6, 1),
    Sketcher.Constraint("Tangent", 6, 2, 7, 2),
    Sketcher.Constraint("Tangent", 7, 1, 4, 1),
    Sketcher.Constraint("Tangent", 8, 2, 9, 2),
    Sketcher.Constraint("Tangent", 9, 1, 10, 1),
    Sketcher.Constraint("Tangent", 10, 2, 11, 2),
    Sketcher.Constraint("Tangent", 11, 1, 8, 1),
    Sketcher.Constraint("Tangent", 12, 2, 13, 2),
    Sketcher.Constraint("Tangent", 13, 1, 14, 1),
    Sketcher.Constraint("Tangent", 14, 2, 15, 2),
    Sketcher.Constraint("Tangent", 15, 1, 12, 1),
    Sketcher.Constraint("Tangent", 16, 2, 17, 2),
    Sketcher.Constraint("Tangent", 17, 1, 18, 1),
    Sketcher.Constraint("Tangent", 18, 2, 19, 2),
    Sketcher.Constraint("Tangent", 19, 1, 16, 1),
    Sketcher.Constraint("Horizontal", 0),
    Sketcher.Constraint("Horizontal", 2),
    Sketcher.Constraint("Horizontal", 4),
    Sketcher.Constraint("Horizontal", 6),
    Sketcher.Constraint("Horizontal", 8),
    Sketcher.Constraint("Horizontal", 10),
    Sketcher.Constraint("Horizontal", 12),
    Sketcher.Constraint("Horizontal", 14),
    Sketcher.Constraint("Vertical", 16),
    Sketcher.Constraint("Vertical", 18),
    Sketcher.Constraint("Equal", 3, 5),
    Sketcher.Constraint("Equal", 7, 9),
    Sketcher.Constraint("Equal", 11, 13),
    Sketcher.Constraint("Equal", 15, 17),
    Sketcher.Constraint("Symmetric", 1, 3, 5, 3, -1),
    Sketcher.Constraint("Vertical", 3, 3, 7, 3),
    Sketcher.Constraint("Vertical", 15, 1, 17, 1),
    Sketcher.Constraint("Radius", 1, Q("6 mm")),
    Sketcher.Constraint("DistanceX", 0, 2, 0, 1, Q("20 mm")),
    Sketcher.Constraint("DistanceX", 8, 2, 8, 1, Q("24 mm")),
    Sketcher.Constraint("DistanceX", 12, 2, 12, 1, Q("22 mm")),
    Sketcher.Constraint("DistanceY", 16, 2, 16, 1, Q("12 mm")),
    Sketcher.Constraint("DistanceX", 1, 3, -1, 1, Q("60 mm")),
    Sketcher.Constraint("DistanceY", 1, 3, -1, 1, Q("112 mm")),
    Sketcher.Constraint("DistanceX", 9, 3, -1, 1, Q("122 mm")),
    Sketcher.Constraint("DistanceY", -1, 1, 9, 3, Q("110 mm")),
    Sketcher.Constraint("DistanceX", -1, 1, 13, 3, Q("64 mm")),
    Sketcher.Constraint("DistanceY", 13, 3, -1, 1, Q("24 mm")),
    Sketcher.Constraint("DistanceY", -1, 1, 17, 3, Q("50 mm")),
])
pocket15 = doc.addObject("PartDesign::Pocket", "Pocket014")
body.addObject(pocket15)
pocket15.Profile = sketch16
pocket15.Type = "ThroughAll"
pocket15.Midplane = True

doc.recompute()
